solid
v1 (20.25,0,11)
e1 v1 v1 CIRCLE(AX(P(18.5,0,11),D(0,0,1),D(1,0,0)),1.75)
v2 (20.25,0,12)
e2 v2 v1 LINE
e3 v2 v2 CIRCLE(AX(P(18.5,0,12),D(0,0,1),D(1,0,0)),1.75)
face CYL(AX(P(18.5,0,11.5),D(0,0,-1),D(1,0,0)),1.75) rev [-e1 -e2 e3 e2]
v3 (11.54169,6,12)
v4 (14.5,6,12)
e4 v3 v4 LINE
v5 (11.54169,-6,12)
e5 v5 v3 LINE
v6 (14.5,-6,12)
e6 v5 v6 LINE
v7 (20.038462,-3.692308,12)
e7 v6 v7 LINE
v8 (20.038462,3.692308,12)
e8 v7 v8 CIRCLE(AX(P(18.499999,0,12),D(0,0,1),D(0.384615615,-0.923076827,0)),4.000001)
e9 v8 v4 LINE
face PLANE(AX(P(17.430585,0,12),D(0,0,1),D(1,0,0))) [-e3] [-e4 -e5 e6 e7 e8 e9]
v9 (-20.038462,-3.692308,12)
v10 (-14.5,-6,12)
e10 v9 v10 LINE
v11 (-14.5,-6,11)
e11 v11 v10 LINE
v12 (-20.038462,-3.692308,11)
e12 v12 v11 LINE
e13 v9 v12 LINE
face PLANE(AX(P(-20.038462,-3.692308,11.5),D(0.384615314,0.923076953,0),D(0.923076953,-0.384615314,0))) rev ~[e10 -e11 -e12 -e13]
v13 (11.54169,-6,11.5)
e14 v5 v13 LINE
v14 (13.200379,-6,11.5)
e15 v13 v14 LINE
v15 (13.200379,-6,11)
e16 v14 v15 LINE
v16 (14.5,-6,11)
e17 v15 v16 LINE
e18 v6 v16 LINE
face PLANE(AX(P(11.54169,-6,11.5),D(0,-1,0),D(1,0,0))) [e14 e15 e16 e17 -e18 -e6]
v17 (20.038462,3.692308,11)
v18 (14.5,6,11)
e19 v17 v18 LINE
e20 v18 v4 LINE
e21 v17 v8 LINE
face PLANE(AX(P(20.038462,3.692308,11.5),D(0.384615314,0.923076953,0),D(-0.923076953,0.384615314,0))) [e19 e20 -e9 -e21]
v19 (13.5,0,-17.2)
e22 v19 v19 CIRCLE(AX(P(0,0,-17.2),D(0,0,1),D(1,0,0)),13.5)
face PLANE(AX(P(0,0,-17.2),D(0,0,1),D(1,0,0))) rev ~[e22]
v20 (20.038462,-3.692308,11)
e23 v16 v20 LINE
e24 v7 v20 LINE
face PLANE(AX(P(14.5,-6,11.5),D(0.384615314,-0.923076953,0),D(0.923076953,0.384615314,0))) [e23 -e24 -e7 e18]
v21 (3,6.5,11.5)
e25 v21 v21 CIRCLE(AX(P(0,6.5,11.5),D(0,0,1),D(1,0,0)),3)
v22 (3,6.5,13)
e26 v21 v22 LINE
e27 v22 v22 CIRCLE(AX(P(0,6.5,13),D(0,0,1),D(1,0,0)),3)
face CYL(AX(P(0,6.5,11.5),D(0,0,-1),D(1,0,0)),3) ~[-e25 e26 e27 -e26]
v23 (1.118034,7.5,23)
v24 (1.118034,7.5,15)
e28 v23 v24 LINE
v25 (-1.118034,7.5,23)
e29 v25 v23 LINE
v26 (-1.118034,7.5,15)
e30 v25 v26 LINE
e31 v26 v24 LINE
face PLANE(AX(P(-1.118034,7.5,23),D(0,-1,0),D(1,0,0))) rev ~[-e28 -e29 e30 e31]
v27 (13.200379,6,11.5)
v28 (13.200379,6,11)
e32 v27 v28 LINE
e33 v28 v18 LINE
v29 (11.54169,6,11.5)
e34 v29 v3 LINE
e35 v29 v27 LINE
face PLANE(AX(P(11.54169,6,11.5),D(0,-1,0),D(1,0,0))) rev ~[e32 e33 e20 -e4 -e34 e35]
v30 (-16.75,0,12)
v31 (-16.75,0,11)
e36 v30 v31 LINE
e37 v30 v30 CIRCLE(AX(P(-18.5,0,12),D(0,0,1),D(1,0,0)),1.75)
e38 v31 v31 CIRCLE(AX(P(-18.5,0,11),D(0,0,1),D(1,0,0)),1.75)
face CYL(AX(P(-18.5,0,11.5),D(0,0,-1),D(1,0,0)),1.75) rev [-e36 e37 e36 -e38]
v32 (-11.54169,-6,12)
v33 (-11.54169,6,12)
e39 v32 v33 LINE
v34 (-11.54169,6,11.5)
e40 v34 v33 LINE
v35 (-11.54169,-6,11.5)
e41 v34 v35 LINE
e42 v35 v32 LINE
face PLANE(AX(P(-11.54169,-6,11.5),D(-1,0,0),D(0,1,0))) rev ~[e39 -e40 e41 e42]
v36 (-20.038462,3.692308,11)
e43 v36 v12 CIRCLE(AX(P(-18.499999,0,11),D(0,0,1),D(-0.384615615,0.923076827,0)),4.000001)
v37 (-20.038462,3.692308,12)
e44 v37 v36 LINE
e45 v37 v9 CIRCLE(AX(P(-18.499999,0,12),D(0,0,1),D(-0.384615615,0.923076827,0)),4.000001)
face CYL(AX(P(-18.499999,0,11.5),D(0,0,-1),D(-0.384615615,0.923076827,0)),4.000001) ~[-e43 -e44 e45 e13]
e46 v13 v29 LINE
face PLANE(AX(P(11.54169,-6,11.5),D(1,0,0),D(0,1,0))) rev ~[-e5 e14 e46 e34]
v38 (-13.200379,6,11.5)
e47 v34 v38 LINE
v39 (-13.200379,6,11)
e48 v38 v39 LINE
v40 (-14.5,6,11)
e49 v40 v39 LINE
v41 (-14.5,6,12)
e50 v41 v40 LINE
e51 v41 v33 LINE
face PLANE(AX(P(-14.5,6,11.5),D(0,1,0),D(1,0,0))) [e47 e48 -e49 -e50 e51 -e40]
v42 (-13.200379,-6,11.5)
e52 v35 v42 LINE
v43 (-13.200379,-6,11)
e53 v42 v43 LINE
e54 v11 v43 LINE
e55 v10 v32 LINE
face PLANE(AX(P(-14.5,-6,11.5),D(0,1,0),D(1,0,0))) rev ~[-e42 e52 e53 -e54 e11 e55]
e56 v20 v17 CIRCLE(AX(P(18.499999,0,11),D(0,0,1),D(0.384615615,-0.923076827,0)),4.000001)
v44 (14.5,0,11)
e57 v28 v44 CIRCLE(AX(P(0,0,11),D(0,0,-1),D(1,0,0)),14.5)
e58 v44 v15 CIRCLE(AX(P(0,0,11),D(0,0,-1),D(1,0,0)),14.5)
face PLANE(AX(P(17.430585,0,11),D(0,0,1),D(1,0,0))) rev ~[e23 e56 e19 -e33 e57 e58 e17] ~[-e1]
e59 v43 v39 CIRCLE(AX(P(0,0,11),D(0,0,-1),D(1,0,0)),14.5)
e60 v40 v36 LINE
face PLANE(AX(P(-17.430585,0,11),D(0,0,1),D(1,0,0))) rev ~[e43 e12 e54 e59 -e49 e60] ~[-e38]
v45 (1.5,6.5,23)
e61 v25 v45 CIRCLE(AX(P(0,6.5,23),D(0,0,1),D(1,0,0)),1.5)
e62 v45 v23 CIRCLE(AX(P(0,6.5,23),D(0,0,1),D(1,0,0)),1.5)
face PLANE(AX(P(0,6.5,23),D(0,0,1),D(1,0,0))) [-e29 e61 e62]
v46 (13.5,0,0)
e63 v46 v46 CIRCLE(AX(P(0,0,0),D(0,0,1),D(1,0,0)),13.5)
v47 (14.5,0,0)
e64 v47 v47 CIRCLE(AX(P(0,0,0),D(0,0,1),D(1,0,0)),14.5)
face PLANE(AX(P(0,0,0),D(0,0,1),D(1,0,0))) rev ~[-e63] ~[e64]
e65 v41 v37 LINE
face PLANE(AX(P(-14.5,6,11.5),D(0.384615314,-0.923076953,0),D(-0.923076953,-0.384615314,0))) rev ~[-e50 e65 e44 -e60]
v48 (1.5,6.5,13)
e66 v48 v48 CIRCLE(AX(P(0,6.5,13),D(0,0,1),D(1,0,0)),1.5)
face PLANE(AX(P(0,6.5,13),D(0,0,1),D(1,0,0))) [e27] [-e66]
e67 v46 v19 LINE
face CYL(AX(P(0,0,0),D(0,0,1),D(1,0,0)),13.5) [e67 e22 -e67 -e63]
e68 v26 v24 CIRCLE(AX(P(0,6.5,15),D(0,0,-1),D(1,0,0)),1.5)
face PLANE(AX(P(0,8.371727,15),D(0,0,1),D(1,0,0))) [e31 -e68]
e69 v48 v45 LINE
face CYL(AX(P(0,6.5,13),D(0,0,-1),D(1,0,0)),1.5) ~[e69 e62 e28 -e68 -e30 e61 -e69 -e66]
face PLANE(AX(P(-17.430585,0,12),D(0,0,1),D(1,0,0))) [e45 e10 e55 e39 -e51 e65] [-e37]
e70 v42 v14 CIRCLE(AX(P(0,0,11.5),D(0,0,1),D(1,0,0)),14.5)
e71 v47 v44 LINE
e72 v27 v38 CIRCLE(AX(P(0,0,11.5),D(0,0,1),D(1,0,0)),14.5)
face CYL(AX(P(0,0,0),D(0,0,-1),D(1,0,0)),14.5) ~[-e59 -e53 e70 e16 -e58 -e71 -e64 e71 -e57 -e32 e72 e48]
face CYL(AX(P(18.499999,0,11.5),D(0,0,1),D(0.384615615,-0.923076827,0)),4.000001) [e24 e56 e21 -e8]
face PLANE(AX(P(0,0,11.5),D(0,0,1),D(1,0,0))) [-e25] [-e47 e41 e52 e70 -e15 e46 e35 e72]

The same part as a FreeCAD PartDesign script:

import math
import FreeCAD as App
import Part
import Sketcher

V = App.Vector
Q = App.Units.Quantity


def add_polygon(sketch, points):
    """Adds a closed chain of lines whose ends are joined by coincident constraints."""
    first, n = sketch.GeometryCount, len(points)
    for a, b in zip(points, points[1:] + points[:1]):
        sketch.addGeometry(Part.LineSegment(App.Vector(*a, 0), App.Vector(*b, 0)), False)
    for i in range(n):
        sketch.addConstraint(Sketcher.Constraint("Coincident", first + i, 2, first + (i + 1) % n, 1))

doc = App.newDocument("Part")
params = doc.addObject("Spreadsheet::Sheet", "Params")
for row, (alias, value) in enumerate([
    ("sketch1_diameter", "27 mm"),
    ("pad1_length", "17.2 mm"),
    ("sketch2_diameter", "29 mm"),
    ("pad2_length", "11.5 mm"),
    ("sketch3_radius", "4.000001 mm"),
    ("sketch3_diameter", "3.5 mm"),
    ("sketch3_height", "12 mm"),
    ("sketch3_length", "6 mm"),
    ("pad3_length", "1 mm"),
    ("sketch4_diameter", "6 mm"),
    ("pad4_length", "1.5 mm"),
    ("sketch5_diameter", "3 mm"),
    ("pad5_length", "10 mm"),
    ("pocket1_length", "8 mm"),
], start=1):
    params.set(f"A{row}", alias)
    params.set(f"B{row}", "=" + value)
    params.setAlias(f"B{row}", alias)

body = doc.addObject("PartDesign::Body", "Body")

# Sketch on XY plane
sketch1 = body.newObject("Sketcher::SketchObject", "Sketch")
sketch1.AttachmentSupport = (doc.getObject("XY_Plane"), [""])
sketch1.MapMode = "FlatFace"
sketch1.addGeometry(Part.Circle(V(0, 0, 0), V(0, 0, 1), 14), False)
sketch1.addConstraint(Sketcher.Constraint("Coincident", 0, 3, -1, 1))
sketch1.addConstraint(Sketcher.Constraint("Diameter", 0, Q("27 mm")))
sketch1.setExpression("Constraints[1]", "Params.sketch1_diameter")
pad1 = body.newObject("PartDesign::Pad", "Pad")
pad1.Profile = sketch1
pad1.setExpression("Length", "Params.pad1_length")
pad1.Reversed = True

# Sketch on XY plane
sketch2 = body.newObject("Sketcher::SketchObject", "Sketch001")
sketch2.AttachmentSupport = (doc.getObject("XY_Plane"), [""])
sketch2.MapMode = "FlatFace"
sketch2.addGeometry(Part.Circle(V(0, 0, 0), V(0, 0, 1), 14), False)
sketch2.addConstraint(Sketcher.Constraint("Coincident", 0, 3, -1, 1))
sketch2.addConstraint(Sketcher.Constraint("Diameter", 0, Q("29 mm")))
sketch2.setExpression("Constraints[1]", "Params.sketch2_diameter")
pad2 = body.newObject("PartDesign::Pad", "Pad001")
pad2.Profile = sketch2
pad2.setExpression("Length", "Params.pad2_length")

# Sketch on XY plane
sketch3 = body.newObject("Sketcher::SketchObject", "Sketch002")
sketch3.AttachmentSupport = (doc.getObject("XY_Plane"), [""])
sketch3.MapMode = "FlatFace"
sketch3.AttachmentOffset = App.Placement(V(0, 0, 11.5), App.Rotation())
sketch3.addGeometry(Part.LineSegment(V(-20, -3.7, 0), V(-14.5, -6, 0)), False)
sketch3.addGeometry(Part.LineSegment(V(-14.5, -6, 0), V(-11.5, -6, 0)), False)
sketch3.addGeometry(Part.LineSegment(V(-11.5, -6, 0), V(-11.5, 6, 0)), False)
sketch3.addGeometry(Part.LineSegment(V(-11.5, 6, 0), V(-14.5, 6, 0)), False)
sketch3.addGeometry(Part.LineSegment(V(-14.5, 6, 0), V(-20, 3.7, 0)), False)
sketch3.addGeometry(Part.ArcOfCircle(Part.Circle(V(-18.5, 0, 0), V(0, 0, 1), 4), math.radians(113), math.radians(247)), False)
sketch3.addGeometry(Part.Circle(V(-18.5, 0, 0), V(0, 0, 1), 1.8), False)
sketch3.addGeometry(Part.ArcOfCircle(Part.Circle(V(18.5, 0, 0), V(0, 0, 1), 4), math.radians(-67), math.radians(67)), False)
sketch3.addGeometry(Part.LineSegment(V(20, 3.7, 0), V(14.5, 6, 0)), False)
sketch3.addGeometry(Part.LineSegment(V(14.5, 6, 0), V(11.5, 6, 0)), False)
sketch3.addGeometry(Part.LineSegment(V(11.5, 6, 0), V(11.5, -6, 0)), False)
sketch3.addGeometry(Part.LineSegment(V(11.5, -6, 0), V(14.5, -6, 0)), False)
sketch3.addGeometry(Part.LineSegment(V(14.5, -6, 0), V(20, -3.7, 0)), False)
sketch3.addGeometry(Part.Circle(V(18.5, 0, 0), V(0, 0, 1), 1.8), False)
sketch3.addConstraint(Sketcher.Constraint("Coincident", 0, 2, 1, 1))
sketch3.addConstraint(Sketcher.Constraint("Coincident", 1, 2, 2, 1))
sketch3.addConstraint(Sketcher.Constraint("Coincident", 2, 2, 3, 1))
sketch3.addConstraint(Sketcher.Constraint("Coincident", 3, 2, 4, 1))
sketch3.addConstraint(Sketcher.Constraint("Tangent", 4, 2, 5, 1))
sketch3.addConstraint(Sketcher.Constraint("Tangent", 5, 2, 0, 1))
sketch3.addConstraint(Sketcher.Constraint("Tangent", 7, 2, 8, 1))
sketch3.addConstraint(Sketcher.Constraint("Coincident", 8, 2, 9, 1))
sketch3.addConstraint(Sketcher.Constraint("Coincident", 9, 2, 10, 1))
sketch3.addConstraint(Sketcher.Constraint("Coincident", 10, 2, 11, 1))
sketch3.addConstraint(Sketcher.Constraint("Coincident", 11, 2, 12, 1))
sketch3.addConstraint(Sketcher.Constraint("Tangent", 12, 2, 7, 1))
sketch3.addConstraint(Sketcher.Constraint("Horizontal", 1))
sketch3.addConstraint(Sketcher.Constraint("Vertical", 2))
sketch3.addConstraint(Sketcher.Constraint("Horizontal", 3))
sketch3.addConstraint(Sketcher.Constraint("Horizontal", 9))
sketch3.addConstraint(Sketcher.Constraint("Vertical", 10))
sketch3.addConstraint(Sketcher.Constraint("Horizontal", 11))
sketch3.addConstraint(Sketcher.Constraint("Coincident", 6, 3, 5, 3))
sketch3.addConstraint(Sketcher.Constraint("Coincident", 13, 3, 7, 3))
sketch3.addConstraint(Sketcher.Constraint("Equal", 5, 7))
sketch3.addConstraint(Sketcher.Constraint("Equal", 6, 13))
sketch3.addConstraint(Sketcher.Constraint("Symmetric", 5, 3, 7, 3, -1, 1))
sketch3.addConstraint(Sketcher.Constraint("Symmetric", 0, 2, 8, 2, -1, 1))
sketch3.addConstraint(Sketcher.Constraint("Symmetric", 2, 2, 10, 2, -1, 1))
sketch3.addConstraint(Sketcher.Constraint("Symmetric", 4, 2, 7, 2, -2))
sketch3.addConstraint(Sketcher.Constraint("Symmetric", 0, 2, 11, 2, -2))
sketch3.addConstraint(Sketcher.Constraint("Radius", 5, Q("4.000001 mm")))
sketch3.addConstraint(Sketcher.Constraint("Diameter", 6, Q("3.5 mm")))
sketch3.addConstraint(Sketcher.Constraint("DistanceY", 2, 1, 2, 2, Q("12 mm")))
sketch3.addConstraint(Sketcher.Constraint("Distance", 0, Q("6 mm")))
sketch3.addConstraint(Sketcher.Constraint("DistanceX", 5, 3, 7, 3, Q("36.999998 mm")))
sketch3.addConstraint(Sketcher.Constraint("DistanceX", 1, 1, 1, 2, Q("2.95831 mm")))
sketch3.setExpression("Constraints[27]", "Params.sketch3_radius")
sketch3.setExpression("Constraints[28]", "Params.sketch3_diameter")
sketch3.setExpression("Constraints[29]", "Params.sketch3_height")
sketch3.setExpression("Constraints[30]", "Params.sketch3_length")
pad3 = body.newObject("PartDesign::Pad", "Pad002")
pad3.Profile = sketch3
pad3.setExpression("Length", "Params.pad3_length")
pad3.Midplane = True

# Sketch on XY plane
sketch4 = body.newObject("Sketcher::SketchObject", "Sketch003")
sketch4.AttachmentSupport = (doc.getObject("XY_Plane"), [""])
sketch4.MapMode = "FlatFace"
sketch4.AttachmentOffset = App.Placement(V(0, 0, 11.5), App.Rotation())
sketch4.addGeometry(Part.Circle(V(0, 6.5, 0), V(0, 0, 1), 3), False)
sketch4.addConstraint(Sketcher.Constraint("PointOnObject", 0, 3, -2))
sketch4.addConstraint(Sketcher.Constraint("Diameter", 0, Q("6 mm")))
sketch4.addConstraint(Sketcher.Constraint("DistanceY", -1, 1, 0, 3, Q("6.5 mm")))
sketch4.setExpression("Constraints[1]", "Params.sketch4_diameter")
pad4 = body.newObject("PartDesign::Pad", "Pad003")
pad4.Profile = sketch4
pad4.setExpression("Length", "Params.pad4_length")

# Sketch on XY plane
sketch5 = body.newObject("Sketcher::SketchObject", "Sketch004")
sketch5.AttachmentSupport = (doc.getObject("XY_Plane"), [""])
sketch5.MapMode = "FlatFace"
sketch5.AttachmentOffset = App.Placement(V(0, 0, 13), App.Rotation())
sketch5.addGeometry(Part.Circle(V(0, 6.5, 0), V(0, 0, 1), 1.5), False)
sketch5.addConstraint(Sketcher.Constraint("PointOnObject", 0, 3, -2))
sketch5.addConstraint(Sketcher.Constraint("Diameter", 0, Q("3 mm")))
sketch5.addConstraint(Sketcher.Constraint("DistanceY", -1, 1, 0, 3, Q("6.5 mm")))
sketch5.setExpression("Constraints[1]", "Params.sketch5_diameter")
pad5 = body.newObject("PartDesign::Pad", "Pad004")
pad5.Profile = sketch5
pad5.setExpression("Length", "Params.pad5_length")

# Sketch on XY plane
sketch6 = body.newObject("Sketcher::SketchObject", "Sketch005")
sketch6.AttachmentSupport = (doc.getObject("XY_Plane"), [""])
sketch6.MapMode = "FlatFace"
sketch6.AttachmentOffset = App.Placement(V(0, 0, 23), App.Rotation())
add_polygon(sketch6, [(-1.1, 9.2), (-1.1, 7.5), (1.1, 7.5), (1.1, 9.2)])  # lines 0-3
sketch6.addConstraint(Sketcher.Constraint("Vertical", 0))
sketch6.addConstraint(Sketcher.Constraint("Horizontal", 1))
sketch6.addConstraint(Sketcher.Constraint("Vertical", 2))
sketch6.addConstraint(Sketcher.Constraint("Horizontal", 3))
sketch6.addConstraint(Sketcher.Constraint("DistanceY", -1, 1, 0, 2, Q("7.5 mm")))
sketch6.addConstraint(Sketcher.Constraint("DistanceX", 1, 1, 1, 2, Q("2.236068 mm")))
sketch6.addConstraint(Sketcher.Constraint("DistanceY", 0, 2, 0, 1, Q("1.743455 mm")))
sketch6.addConstraint(Sketcher.Constraint("DistanceX", 0, 2, -1, 1, Q("1.118034 mm")))
pocket1 = body.newObject("PartDesign::Pocket", "Pocket")
pocket1.Profile = sketch6
pocket1.setExpression("Length", "Params.pocket1_length")

doc.recompute()
